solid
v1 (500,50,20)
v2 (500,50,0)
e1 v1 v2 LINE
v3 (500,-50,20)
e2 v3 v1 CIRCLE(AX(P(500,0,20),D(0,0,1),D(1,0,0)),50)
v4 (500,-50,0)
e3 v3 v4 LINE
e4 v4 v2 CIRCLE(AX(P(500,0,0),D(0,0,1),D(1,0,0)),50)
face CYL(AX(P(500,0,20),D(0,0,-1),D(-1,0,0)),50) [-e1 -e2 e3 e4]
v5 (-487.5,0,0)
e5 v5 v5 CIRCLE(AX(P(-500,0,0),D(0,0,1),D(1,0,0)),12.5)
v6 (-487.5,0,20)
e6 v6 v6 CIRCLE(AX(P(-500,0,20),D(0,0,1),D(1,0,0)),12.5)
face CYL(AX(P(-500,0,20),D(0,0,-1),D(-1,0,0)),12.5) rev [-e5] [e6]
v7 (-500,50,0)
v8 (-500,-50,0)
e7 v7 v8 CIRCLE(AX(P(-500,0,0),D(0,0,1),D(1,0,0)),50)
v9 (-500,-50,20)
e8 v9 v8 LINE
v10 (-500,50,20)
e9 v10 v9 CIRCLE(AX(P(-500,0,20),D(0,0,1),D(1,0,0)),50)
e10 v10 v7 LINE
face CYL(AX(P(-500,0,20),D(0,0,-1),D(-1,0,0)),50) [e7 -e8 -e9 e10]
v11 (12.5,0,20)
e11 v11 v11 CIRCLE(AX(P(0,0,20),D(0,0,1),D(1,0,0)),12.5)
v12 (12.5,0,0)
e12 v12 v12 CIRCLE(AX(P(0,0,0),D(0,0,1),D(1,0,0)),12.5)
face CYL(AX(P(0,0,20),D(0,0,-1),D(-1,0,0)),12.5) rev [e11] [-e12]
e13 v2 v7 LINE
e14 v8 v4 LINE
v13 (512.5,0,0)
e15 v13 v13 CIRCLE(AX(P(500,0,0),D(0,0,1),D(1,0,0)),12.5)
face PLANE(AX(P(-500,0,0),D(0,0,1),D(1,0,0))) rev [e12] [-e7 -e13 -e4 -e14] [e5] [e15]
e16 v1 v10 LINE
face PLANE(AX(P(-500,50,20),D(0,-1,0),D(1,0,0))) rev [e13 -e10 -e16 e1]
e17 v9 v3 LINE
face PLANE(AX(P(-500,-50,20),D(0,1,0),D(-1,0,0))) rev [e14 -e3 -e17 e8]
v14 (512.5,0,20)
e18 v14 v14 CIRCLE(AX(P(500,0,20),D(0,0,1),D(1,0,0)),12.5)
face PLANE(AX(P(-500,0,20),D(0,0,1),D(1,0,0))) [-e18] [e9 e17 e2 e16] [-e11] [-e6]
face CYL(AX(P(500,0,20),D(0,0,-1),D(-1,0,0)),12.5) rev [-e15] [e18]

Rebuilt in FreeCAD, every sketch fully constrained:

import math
import FreeCAD as App
import Part
import Sketcher

V = App.Vector
Q = App.Units.Quantity

doc = App.newDocument("Part")
body = doc.addObject("PartDesign::Body", "Body")

# Sketch on XY plane
sketch1 = body.newObject("Sketcher::SketchObject", "Sketch")
sketch1.AttachmentSupport = (doc.getObject("XY_Plane"), [""])
sketch1.MapMode = "FlatFace"
sketch1.addGeometry([
    Part.LineSegment(V(500, 50, 0), V(-500, 50, 0)),  # 0
    Part.ArcOfCircle(Part.Circle(V(-500, 0, 0), V(0, 0, 1), 50), math.radians(90), math.radians(270)),  # 1
    Part.LineSegment(V(-500, -50, 0), V(500, -50, 0)),  # 2
    Part.ArcOfCircle(Part.Circle(V(500, 0, 0), V(0, 0, 1), 50), math.radians(-90), math.radians(90)),  # 3
    Part.Circle(V(500, 0, 0), V(0, 0, 1), 12),  # 4
    Part.Circle(V(0, 0, 0), V(0, 0, 1), 12),  # 5
    Part.Circle(V(-500, 0, 0), V(0, 0, 1), 12),  # 6
], False)
sketch1.addConstraint([
    Sketcher.Constraint("Tangent", 0, 2, 1, 1),
    Sketcher.Constraint("Tangent", 1, 2, 2, 1),
    Sketcher.Constraint("Tangent", 2, 2, 3, 1),
    Sketcher.Constraint("Tangent", 3, 2, 0, 1),
    Sketcher.Constraint("Horizontal", 0),
    Sketcher.Constraint("Horizontal", 2),
    Sketcher.Constraint("Coincident", 5, 3, -1, 1),
    Sketcher.Constraint("Coincident", 4, 3, 3, 3),
    Sketcher.Constraint("Coincident", 6, 3, 1, 3),
    Sketcher.Constraint("Equal", 4, 5),
    Sketcher.Constraint("Equal", 5, 6),
    Sketcher.Constraint("Symmetric", 1, 3, 3, 3, -1, 1),
    Sketcher.Constraint("Diameter", 4, Q("25 mm")),
    Sketcher.Constraint("Radius", 1, Q("50 mm")),
    Sketcher.Constraint("DistanceX", 0, 2, 0, 1, Q("1000 mm")),
])
pad1 = body.newObject("PartDesign::Pad", "Pad")
pad1.Profile = sketch1
pad1.Length = 20

doc.recompute()
